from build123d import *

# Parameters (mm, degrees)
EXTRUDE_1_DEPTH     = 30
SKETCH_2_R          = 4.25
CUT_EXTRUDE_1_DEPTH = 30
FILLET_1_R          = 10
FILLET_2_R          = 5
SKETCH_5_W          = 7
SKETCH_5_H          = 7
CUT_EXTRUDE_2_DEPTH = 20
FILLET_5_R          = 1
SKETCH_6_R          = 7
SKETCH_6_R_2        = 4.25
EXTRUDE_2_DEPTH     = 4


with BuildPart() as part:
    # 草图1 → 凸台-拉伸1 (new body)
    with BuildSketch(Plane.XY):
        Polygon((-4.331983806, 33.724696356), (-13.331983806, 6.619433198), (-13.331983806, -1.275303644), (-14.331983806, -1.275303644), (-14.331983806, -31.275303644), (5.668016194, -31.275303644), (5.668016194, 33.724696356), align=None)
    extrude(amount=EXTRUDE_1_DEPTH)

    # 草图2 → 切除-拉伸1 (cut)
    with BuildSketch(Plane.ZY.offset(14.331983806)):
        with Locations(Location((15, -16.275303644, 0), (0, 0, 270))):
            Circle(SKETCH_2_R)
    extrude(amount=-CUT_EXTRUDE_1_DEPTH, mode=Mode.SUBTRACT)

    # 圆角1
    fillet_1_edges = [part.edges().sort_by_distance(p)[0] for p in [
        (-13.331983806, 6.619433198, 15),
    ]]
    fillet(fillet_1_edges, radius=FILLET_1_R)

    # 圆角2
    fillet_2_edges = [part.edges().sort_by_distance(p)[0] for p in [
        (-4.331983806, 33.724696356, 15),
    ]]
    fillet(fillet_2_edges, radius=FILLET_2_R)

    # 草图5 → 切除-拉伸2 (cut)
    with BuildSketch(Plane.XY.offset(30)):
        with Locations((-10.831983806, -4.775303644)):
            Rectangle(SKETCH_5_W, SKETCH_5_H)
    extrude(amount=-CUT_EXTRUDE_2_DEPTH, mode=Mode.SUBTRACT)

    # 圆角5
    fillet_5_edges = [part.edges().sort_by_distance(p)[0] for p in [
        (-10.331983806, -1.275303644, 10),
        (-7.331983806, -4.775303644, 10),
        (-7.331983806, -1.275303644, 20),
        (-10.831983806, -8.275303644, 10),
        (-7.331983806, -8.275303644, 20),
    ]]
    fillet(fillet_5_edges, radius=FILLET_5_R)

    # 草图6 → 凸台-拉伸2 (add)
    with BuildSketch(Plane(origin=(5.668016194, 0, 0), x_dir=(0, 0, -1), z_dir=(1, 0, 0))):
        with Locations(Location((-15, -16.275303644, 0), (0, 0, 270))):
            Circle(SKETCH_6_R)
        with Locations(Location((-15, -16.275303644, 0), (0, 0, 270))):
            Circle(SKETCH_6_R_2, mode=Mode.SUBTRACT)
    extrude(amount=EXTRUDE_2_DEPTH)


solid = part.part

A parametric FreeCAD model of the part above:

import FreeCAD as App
import Part
import Sketcher
from FreeCAD import Vector


def edges_at(feature, points):
    """Names of the edges that pass closest to the given points."""
    edges = feature.Shape.Edges
    near = lambda p: min(range(len(edges)), key=lambda i: edges[i].distToShape(Part.Vertex(*p))[0])
    return sorted({f"Edge{near(p) + 1}" for p in points})

doc = App.newDocument("Part")
body = doc.addObject("PartDesign::Body", "Body")

# Sketch on XY plane
sketch1 = doc.addObject("Sketcher::SketchObject", "Sketch")
body.addObject(sketch1)
sketch1.AttachmentSupport = (doc.XY_Plane, [""])
sketch1.MapMode = "FlatFace"
sketch1.addGeometry([
    Part.LineSegment(Vector(-4.3, 33.7, 0), Vector(-13.3, 6.6, 0)),  # 0
    Part.LineSegment(Vector(-13.3, 6.6, 0), Vector(-13.3, -1.3, 0)),  # 1
    Part.LineSegment(Vector(-13.3, -1.3, 0), Vector(-14.3, -1.3, 0)),  # 2
    Part.LineSegment(Vector(-14.3, -1.3, 0), Vector(-14.3, -31.3, 0)),  # 3
    Part.LineSegment(Vector(-14.3, -31.3, 0), Vector(5.7, -31.3, 0)),  # 4
    Part.LineSegment(Vector(5.7, -31.3, 0), Vector(5.7, 33.7, 0)),  # 5
    Part.LineSegment(Vector(5.7, 33.7, 0), Vector(-4.3, 33.7, 0)),  # 6
], False)
sketch1.addConstraint([
    Sketcher.Constraint("Coincident", 0, 2, 1, 1),
    Sketcher.Constraint("Coincident", 1, 2, 2, 1),
    Sketcher.Constraint("Coincident", 2, 2, 3, 1),
    Sketcher.Constraint("Coincident", 3, 2, 4, 1),
    Sketcher.Constraint("Coincident", 4, 2, 5, 1),
    Sketcher.Constraint("Coincident", 5, 2, 6, 1),
    Sketcher.Constraint("Coincident", 6, 2, 0, 1),
    Sketcher.Constraint("Vertical", 1),
    Sketcher.Constraint("Horizontal", 2),
    Sketcher.Constraint("Vertical", 3),
    Sketcher.Constraint("Horizontal", 4),
    Sketcher.Constraint("Vertical", 5),
    Sketcher.Constraint("Horizontal", 6),
    Sketcher.Constraint("DistanceX", 2, 2, 2, 1, 1.0),
    Sketcher.Constraint("DistanceX", 4, 1, 4, 2, 20.0),
    Sketcher.Constraint("DistanceX", 6, 2, 6, 1, 10.0),
    Sketcher.Constraint("DistanceY", 3, 2, 3, 1, 30.0),
    Sketcher.Constraint("DistanceY", 5, 1, 5, 2, 65.0),
    Sketcher.Constraint("Distance", 0, 28.56038),
    Sketcher.Constraint("DistanceX", 0, 2, -1, 1, 13.331984),
    Sketcher.Constraint("DistanceY", -1, 1, 0, 2, 6.619433),
])
pad1 = doc.addObject("PartDesign::Pad", "Pad")
body.addObject(pad1)
pad1.Profile = sketch1
pad1.Length = 30

# Sketch on YZ plane
sketch2 = doc.addObject("Sketcher::SketchObject", "Sketch001")
body.addObject(sketch2)
sketch2.AttachmentSupport = (doc.YZ_Plane, [""])
sketch2.MapMode = "FlatFace"
sketch2.AttachmentOffset = App.Placement(Vector(0, 0, -14.331984), App.Rotation())
sketch2.addGeometry(Part.Circle(Vector(-16.3, 15, 0), Vector(0, 0, 1), 4.2), False)
sketch2.addConstraint([
    Sketcher.Constraint("Diameter", 0, 8.5),
    Sketcher.Constraint("DistanceY", -1, 1, 0, 3, 15.0),
    Sketcher.Constraint("DistanceX", 0, 3, -1, 1, 16.275304),
])
pocket1 = doc.addObject("PartDesign::Pocket", "Pocket")
body.addObject(pocket1)
pocket1.Profile = sketch2
pocket1.Length = 30
pocket1.Reversed = True
doc.recompute()

fillet = doc.addObject("PartDesign::Fillet", "Fillet")
body.addObject(fillet)
fillet.Base = (pocket1, edges_at(pocket1, [(-13.332, 6.619, 15)]))
fillet.Radius = 10
doc.recompute()

fillet2 = doc.addObject("PartDesign::Fillet", "Fillet001")
body.addObject(fillet2)
fillet2.Base = (fillet, edges_at(fillet, [(-4.332, 33.725, 15)]))
fillet2.Radius = 5

# Sketch on XY plane
sketch3 = doc.addObject("Sketcher::SketchObject", "Sketch002")
body.addObject(sketch3)
sketch3.AttachmentSupport = (doc.XY_Plane, [""])
sketch3.MapMode = "FlatFace"
sketch3.AttachmentOffset = App.Placement(Vector(0, 0, 30), App.Rotation())
sketch3.addGeometry([
    Part.LineSegment(Vector(-14, -1, 0), Vector(-14, -8, 0)),
    Part.LineSegment(Vector(-14, -8, 0), Vector(-7, -8, 0)),
    Part.LineSegment(Vector(-7, -8, 0), Vector(-7, -1, 0)),
    Part.LineSegment(Vector(-7, -1, 0), Vector(-14, -1, 0)),
], False)
sketch3.addConstraint([
    Sketcher.Constraint("Coincident", 0, 2, 1, 1),
    Sketcher.Constraint("Coincident", 1, 2, 2, 1),
    Sketcher.Constraint("Coincident", 2, 2, 3, 1),
    Sketcher.Constraint("Coincident", 3, 2, 0, 1),
    Sketcher.Constraint("Vertical", 0),
    Sketcher.Constraint("Horizontal", 1),
    Sketcher.Constraint("Vertical", 2),
    Sketcher.Constraint("Horizontal", 3),
    Sketcher.Constraint("Equal", 3, 0),
    Sketcher.Constraint("DistanceX", 1, 1, 1, 2, 7.0),
    Sketcher.Constraint("DistanceX", 0, 2, -1, 1, 14.331984),
    Sketcher.Constraint("DistanceY", 0, 2, -1, 1, 8.275304),
])
pocket2 = doc.addObject("PartDesign::Pocket", "Pocket001")
body.addObject(pocket2)
pocket2.Profile = sketch3
pocket2.Length = 20
doc.recompute()

fillet3 = doc.addObject("PartDesign::Fillet", "Fillet002")
body.addObject(fillet3)
fillet3.Base = (pocket2, edges_at(pocket2, [
    (-10.332, -1.275, 10),
    (-7.332, -4.775, 10),
    (-7.332, -1.275, 20),
    (-10.832, -8.275, 10),
    (-7.332, -8.275, 20),
]))
fillet3.Radius = 1

# Sketch on YZ plane
sketch4 = doc.addObject("Sketcher::SketchObject", "Sketch003")
body.addObject(sketch4)
sketch4.AttachmentSupport = (doc.YZ_Plane, [""])
sketch4.MapMode = "FlatFace"
sketch4.AttachmentOffset = App.Placement(Vector(0, 0, 5.668016), App.Rotation())
sketch4.addGeometry([
    Part.Circle(Vector(-16.3, 15, 0), Vector(0, 0, 1), 7),
    Part.Circle(Vector(-16.3, 15, 0), Vector(0, 0, 1), 4.2),
], False)
sketch4.addConstraint([
    Sketcher.Constraint("Coincident", 1, 3, 0, 3),
    Sketcher.Constraint("Diameter", 0, 14.0),
    Sketcher.Constraint("Diameter", 1, 8.5),
    Sketcher.Constraint("DistanceY", -1, 1, 0, 3, 15.0),
    Sketcher.Constraint("DistanceX", 0, 3, -1, 1, 16.275304),
])
pad2 = doc.addObject("PartDesign::Pad", "Pad001")
body.addObject(pad2)
pad2.Profile = sketch4
pad2.Length = 4

doc.recompute()
